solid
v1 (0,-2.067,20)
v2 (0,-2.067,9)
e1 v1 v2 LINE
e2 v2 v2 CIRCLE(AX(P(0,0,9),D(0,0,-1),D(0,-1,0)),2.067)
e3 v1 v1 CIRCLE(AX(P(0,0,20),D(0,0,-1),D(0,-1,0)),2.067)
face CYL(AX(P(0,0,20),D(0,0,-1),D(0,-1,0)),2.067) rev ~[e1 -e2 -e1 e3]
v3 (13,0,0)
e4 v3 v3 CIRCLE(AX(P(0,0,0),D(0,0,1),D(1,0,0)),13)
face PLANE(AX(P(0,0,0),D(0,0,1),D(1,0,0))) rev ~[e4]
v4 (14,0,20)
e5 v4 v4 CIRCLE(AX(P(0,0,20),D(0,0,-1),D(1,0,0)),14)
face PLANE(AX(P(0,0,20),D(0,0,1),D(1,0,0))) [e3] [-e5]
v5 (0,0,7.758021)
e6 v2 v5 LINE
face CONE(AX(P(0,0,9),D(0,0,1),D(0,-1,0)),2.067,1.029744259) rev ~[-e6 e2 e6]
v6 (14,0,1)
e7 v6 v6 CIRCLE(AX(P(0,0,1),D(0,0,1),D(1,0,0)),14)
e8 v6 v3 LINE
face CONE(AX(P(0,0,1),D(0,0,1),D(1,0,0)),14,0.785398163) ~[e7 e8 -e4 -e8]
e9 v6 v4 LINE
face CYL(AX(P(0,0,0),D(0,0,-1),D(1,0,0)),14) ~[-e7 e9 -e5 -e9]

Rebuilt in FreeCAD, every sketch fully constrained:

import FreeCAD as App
import Part
import Sketcher


def edges_at(feature, points):
    """Names of the edges that pass closest to the given points."""
    edges = feature.Shape.Edges
    near = lambda p: min(range(len(edges)), key=lambda i: edges[i].distToShape(Part.Vertex(*p))[0])
    return sorted({f"Edge{near(p) + 1}" for p in points})

doc = App.newDocument("Part")
params = doc.addObject("Spreadsheet::Sheet", "Params")
for row, (alias, value) in enumerate([
    ("sketch1_diameter", "28 mm"),
    ("pad1_length", "20 mm"),
    ("chamfer_size", "1 mm"),
    ("hole_diameter", "4.134 mm"),
    ("hole_depth", "11 mm"),
], start=1):
    params.set(f"A{row}", alias)
    params.set(f"B{row}", "=" + value)
    params.setAlias(f"B{row}", alias)

body = doc.addObject("PartDesign::Body", "Body")

# Sketch on XY plane
sketch1 = body.newObject("Sketcher::SketchObject", "Sketch")
sketch1.AttachmentSupport = (doc.getObject("XY_Plane"), [""])
sketch1.MapMode = "FlatFace"
sketch1.addGeometry(Part.Circle(App.Vector(0, 0, 0), App.Vector(0, 0, 1), 14), False)
sketch1.addConstraint([
    Sketcher.Constraint("Coincident", 0, 3, -1, 1),
    Sketcher.Constraint("Diameter", 0, 28.0),
])
sketch1.setExpression("Constraints[1]", "Params.sketch1_diameter")
pad1 = body.newObject("PartDesign::Pad", "Pad")
pad1.Profile = sketch1
pad1.setExpression("Length", "Params.pad1_length")
doc.recompute()

chamfer = body.newObject("PartDesign::Chamfer", "Chamfer")
chamfer.Base = (pad1, edges_at(pad1, [(-14, 0, 0)]))
chamfer.setExpression("Size", "Params.chamfer_size")

# Sketch on XY plane
sketch2 = body.newObject("Sketcher::SketchObject", "Sketch001")
sketch2.AttachmentSupport = (doc.getObject("XY_Plane"), [""])
sketch2.MapMode = "FlatFace"
sketch2.AttachmentOffset = App.Placement(App.Vector(0, 0, 20), App.Rotation())
sketch2.addGeometry(Part.Circle(App.Vector(0, 0, 0), App.Vector(0, 0, 1), 2.067), False)
sketch2.addConstraint([
    Sketcher.Constraint("Coincident", 0, 3, -1, 1),
    Sketcher.Constraint("Diameter", 0, 4.134),
])
doc.recompute()
hole = body.newObject("PartDesign::Hole", "Hole")
hole.Profile = sketch2
hole.ThreadType = "None"
hole.setExpression("Diameter", "Params.hole_diameter")
hole.DepthType = "Dimension"
hole.setExpression("Depth", "Params.hole_depth")
hole.DrillPoint = "Angled"
hole.DrillPointAngle = 118

doc.recompute()
